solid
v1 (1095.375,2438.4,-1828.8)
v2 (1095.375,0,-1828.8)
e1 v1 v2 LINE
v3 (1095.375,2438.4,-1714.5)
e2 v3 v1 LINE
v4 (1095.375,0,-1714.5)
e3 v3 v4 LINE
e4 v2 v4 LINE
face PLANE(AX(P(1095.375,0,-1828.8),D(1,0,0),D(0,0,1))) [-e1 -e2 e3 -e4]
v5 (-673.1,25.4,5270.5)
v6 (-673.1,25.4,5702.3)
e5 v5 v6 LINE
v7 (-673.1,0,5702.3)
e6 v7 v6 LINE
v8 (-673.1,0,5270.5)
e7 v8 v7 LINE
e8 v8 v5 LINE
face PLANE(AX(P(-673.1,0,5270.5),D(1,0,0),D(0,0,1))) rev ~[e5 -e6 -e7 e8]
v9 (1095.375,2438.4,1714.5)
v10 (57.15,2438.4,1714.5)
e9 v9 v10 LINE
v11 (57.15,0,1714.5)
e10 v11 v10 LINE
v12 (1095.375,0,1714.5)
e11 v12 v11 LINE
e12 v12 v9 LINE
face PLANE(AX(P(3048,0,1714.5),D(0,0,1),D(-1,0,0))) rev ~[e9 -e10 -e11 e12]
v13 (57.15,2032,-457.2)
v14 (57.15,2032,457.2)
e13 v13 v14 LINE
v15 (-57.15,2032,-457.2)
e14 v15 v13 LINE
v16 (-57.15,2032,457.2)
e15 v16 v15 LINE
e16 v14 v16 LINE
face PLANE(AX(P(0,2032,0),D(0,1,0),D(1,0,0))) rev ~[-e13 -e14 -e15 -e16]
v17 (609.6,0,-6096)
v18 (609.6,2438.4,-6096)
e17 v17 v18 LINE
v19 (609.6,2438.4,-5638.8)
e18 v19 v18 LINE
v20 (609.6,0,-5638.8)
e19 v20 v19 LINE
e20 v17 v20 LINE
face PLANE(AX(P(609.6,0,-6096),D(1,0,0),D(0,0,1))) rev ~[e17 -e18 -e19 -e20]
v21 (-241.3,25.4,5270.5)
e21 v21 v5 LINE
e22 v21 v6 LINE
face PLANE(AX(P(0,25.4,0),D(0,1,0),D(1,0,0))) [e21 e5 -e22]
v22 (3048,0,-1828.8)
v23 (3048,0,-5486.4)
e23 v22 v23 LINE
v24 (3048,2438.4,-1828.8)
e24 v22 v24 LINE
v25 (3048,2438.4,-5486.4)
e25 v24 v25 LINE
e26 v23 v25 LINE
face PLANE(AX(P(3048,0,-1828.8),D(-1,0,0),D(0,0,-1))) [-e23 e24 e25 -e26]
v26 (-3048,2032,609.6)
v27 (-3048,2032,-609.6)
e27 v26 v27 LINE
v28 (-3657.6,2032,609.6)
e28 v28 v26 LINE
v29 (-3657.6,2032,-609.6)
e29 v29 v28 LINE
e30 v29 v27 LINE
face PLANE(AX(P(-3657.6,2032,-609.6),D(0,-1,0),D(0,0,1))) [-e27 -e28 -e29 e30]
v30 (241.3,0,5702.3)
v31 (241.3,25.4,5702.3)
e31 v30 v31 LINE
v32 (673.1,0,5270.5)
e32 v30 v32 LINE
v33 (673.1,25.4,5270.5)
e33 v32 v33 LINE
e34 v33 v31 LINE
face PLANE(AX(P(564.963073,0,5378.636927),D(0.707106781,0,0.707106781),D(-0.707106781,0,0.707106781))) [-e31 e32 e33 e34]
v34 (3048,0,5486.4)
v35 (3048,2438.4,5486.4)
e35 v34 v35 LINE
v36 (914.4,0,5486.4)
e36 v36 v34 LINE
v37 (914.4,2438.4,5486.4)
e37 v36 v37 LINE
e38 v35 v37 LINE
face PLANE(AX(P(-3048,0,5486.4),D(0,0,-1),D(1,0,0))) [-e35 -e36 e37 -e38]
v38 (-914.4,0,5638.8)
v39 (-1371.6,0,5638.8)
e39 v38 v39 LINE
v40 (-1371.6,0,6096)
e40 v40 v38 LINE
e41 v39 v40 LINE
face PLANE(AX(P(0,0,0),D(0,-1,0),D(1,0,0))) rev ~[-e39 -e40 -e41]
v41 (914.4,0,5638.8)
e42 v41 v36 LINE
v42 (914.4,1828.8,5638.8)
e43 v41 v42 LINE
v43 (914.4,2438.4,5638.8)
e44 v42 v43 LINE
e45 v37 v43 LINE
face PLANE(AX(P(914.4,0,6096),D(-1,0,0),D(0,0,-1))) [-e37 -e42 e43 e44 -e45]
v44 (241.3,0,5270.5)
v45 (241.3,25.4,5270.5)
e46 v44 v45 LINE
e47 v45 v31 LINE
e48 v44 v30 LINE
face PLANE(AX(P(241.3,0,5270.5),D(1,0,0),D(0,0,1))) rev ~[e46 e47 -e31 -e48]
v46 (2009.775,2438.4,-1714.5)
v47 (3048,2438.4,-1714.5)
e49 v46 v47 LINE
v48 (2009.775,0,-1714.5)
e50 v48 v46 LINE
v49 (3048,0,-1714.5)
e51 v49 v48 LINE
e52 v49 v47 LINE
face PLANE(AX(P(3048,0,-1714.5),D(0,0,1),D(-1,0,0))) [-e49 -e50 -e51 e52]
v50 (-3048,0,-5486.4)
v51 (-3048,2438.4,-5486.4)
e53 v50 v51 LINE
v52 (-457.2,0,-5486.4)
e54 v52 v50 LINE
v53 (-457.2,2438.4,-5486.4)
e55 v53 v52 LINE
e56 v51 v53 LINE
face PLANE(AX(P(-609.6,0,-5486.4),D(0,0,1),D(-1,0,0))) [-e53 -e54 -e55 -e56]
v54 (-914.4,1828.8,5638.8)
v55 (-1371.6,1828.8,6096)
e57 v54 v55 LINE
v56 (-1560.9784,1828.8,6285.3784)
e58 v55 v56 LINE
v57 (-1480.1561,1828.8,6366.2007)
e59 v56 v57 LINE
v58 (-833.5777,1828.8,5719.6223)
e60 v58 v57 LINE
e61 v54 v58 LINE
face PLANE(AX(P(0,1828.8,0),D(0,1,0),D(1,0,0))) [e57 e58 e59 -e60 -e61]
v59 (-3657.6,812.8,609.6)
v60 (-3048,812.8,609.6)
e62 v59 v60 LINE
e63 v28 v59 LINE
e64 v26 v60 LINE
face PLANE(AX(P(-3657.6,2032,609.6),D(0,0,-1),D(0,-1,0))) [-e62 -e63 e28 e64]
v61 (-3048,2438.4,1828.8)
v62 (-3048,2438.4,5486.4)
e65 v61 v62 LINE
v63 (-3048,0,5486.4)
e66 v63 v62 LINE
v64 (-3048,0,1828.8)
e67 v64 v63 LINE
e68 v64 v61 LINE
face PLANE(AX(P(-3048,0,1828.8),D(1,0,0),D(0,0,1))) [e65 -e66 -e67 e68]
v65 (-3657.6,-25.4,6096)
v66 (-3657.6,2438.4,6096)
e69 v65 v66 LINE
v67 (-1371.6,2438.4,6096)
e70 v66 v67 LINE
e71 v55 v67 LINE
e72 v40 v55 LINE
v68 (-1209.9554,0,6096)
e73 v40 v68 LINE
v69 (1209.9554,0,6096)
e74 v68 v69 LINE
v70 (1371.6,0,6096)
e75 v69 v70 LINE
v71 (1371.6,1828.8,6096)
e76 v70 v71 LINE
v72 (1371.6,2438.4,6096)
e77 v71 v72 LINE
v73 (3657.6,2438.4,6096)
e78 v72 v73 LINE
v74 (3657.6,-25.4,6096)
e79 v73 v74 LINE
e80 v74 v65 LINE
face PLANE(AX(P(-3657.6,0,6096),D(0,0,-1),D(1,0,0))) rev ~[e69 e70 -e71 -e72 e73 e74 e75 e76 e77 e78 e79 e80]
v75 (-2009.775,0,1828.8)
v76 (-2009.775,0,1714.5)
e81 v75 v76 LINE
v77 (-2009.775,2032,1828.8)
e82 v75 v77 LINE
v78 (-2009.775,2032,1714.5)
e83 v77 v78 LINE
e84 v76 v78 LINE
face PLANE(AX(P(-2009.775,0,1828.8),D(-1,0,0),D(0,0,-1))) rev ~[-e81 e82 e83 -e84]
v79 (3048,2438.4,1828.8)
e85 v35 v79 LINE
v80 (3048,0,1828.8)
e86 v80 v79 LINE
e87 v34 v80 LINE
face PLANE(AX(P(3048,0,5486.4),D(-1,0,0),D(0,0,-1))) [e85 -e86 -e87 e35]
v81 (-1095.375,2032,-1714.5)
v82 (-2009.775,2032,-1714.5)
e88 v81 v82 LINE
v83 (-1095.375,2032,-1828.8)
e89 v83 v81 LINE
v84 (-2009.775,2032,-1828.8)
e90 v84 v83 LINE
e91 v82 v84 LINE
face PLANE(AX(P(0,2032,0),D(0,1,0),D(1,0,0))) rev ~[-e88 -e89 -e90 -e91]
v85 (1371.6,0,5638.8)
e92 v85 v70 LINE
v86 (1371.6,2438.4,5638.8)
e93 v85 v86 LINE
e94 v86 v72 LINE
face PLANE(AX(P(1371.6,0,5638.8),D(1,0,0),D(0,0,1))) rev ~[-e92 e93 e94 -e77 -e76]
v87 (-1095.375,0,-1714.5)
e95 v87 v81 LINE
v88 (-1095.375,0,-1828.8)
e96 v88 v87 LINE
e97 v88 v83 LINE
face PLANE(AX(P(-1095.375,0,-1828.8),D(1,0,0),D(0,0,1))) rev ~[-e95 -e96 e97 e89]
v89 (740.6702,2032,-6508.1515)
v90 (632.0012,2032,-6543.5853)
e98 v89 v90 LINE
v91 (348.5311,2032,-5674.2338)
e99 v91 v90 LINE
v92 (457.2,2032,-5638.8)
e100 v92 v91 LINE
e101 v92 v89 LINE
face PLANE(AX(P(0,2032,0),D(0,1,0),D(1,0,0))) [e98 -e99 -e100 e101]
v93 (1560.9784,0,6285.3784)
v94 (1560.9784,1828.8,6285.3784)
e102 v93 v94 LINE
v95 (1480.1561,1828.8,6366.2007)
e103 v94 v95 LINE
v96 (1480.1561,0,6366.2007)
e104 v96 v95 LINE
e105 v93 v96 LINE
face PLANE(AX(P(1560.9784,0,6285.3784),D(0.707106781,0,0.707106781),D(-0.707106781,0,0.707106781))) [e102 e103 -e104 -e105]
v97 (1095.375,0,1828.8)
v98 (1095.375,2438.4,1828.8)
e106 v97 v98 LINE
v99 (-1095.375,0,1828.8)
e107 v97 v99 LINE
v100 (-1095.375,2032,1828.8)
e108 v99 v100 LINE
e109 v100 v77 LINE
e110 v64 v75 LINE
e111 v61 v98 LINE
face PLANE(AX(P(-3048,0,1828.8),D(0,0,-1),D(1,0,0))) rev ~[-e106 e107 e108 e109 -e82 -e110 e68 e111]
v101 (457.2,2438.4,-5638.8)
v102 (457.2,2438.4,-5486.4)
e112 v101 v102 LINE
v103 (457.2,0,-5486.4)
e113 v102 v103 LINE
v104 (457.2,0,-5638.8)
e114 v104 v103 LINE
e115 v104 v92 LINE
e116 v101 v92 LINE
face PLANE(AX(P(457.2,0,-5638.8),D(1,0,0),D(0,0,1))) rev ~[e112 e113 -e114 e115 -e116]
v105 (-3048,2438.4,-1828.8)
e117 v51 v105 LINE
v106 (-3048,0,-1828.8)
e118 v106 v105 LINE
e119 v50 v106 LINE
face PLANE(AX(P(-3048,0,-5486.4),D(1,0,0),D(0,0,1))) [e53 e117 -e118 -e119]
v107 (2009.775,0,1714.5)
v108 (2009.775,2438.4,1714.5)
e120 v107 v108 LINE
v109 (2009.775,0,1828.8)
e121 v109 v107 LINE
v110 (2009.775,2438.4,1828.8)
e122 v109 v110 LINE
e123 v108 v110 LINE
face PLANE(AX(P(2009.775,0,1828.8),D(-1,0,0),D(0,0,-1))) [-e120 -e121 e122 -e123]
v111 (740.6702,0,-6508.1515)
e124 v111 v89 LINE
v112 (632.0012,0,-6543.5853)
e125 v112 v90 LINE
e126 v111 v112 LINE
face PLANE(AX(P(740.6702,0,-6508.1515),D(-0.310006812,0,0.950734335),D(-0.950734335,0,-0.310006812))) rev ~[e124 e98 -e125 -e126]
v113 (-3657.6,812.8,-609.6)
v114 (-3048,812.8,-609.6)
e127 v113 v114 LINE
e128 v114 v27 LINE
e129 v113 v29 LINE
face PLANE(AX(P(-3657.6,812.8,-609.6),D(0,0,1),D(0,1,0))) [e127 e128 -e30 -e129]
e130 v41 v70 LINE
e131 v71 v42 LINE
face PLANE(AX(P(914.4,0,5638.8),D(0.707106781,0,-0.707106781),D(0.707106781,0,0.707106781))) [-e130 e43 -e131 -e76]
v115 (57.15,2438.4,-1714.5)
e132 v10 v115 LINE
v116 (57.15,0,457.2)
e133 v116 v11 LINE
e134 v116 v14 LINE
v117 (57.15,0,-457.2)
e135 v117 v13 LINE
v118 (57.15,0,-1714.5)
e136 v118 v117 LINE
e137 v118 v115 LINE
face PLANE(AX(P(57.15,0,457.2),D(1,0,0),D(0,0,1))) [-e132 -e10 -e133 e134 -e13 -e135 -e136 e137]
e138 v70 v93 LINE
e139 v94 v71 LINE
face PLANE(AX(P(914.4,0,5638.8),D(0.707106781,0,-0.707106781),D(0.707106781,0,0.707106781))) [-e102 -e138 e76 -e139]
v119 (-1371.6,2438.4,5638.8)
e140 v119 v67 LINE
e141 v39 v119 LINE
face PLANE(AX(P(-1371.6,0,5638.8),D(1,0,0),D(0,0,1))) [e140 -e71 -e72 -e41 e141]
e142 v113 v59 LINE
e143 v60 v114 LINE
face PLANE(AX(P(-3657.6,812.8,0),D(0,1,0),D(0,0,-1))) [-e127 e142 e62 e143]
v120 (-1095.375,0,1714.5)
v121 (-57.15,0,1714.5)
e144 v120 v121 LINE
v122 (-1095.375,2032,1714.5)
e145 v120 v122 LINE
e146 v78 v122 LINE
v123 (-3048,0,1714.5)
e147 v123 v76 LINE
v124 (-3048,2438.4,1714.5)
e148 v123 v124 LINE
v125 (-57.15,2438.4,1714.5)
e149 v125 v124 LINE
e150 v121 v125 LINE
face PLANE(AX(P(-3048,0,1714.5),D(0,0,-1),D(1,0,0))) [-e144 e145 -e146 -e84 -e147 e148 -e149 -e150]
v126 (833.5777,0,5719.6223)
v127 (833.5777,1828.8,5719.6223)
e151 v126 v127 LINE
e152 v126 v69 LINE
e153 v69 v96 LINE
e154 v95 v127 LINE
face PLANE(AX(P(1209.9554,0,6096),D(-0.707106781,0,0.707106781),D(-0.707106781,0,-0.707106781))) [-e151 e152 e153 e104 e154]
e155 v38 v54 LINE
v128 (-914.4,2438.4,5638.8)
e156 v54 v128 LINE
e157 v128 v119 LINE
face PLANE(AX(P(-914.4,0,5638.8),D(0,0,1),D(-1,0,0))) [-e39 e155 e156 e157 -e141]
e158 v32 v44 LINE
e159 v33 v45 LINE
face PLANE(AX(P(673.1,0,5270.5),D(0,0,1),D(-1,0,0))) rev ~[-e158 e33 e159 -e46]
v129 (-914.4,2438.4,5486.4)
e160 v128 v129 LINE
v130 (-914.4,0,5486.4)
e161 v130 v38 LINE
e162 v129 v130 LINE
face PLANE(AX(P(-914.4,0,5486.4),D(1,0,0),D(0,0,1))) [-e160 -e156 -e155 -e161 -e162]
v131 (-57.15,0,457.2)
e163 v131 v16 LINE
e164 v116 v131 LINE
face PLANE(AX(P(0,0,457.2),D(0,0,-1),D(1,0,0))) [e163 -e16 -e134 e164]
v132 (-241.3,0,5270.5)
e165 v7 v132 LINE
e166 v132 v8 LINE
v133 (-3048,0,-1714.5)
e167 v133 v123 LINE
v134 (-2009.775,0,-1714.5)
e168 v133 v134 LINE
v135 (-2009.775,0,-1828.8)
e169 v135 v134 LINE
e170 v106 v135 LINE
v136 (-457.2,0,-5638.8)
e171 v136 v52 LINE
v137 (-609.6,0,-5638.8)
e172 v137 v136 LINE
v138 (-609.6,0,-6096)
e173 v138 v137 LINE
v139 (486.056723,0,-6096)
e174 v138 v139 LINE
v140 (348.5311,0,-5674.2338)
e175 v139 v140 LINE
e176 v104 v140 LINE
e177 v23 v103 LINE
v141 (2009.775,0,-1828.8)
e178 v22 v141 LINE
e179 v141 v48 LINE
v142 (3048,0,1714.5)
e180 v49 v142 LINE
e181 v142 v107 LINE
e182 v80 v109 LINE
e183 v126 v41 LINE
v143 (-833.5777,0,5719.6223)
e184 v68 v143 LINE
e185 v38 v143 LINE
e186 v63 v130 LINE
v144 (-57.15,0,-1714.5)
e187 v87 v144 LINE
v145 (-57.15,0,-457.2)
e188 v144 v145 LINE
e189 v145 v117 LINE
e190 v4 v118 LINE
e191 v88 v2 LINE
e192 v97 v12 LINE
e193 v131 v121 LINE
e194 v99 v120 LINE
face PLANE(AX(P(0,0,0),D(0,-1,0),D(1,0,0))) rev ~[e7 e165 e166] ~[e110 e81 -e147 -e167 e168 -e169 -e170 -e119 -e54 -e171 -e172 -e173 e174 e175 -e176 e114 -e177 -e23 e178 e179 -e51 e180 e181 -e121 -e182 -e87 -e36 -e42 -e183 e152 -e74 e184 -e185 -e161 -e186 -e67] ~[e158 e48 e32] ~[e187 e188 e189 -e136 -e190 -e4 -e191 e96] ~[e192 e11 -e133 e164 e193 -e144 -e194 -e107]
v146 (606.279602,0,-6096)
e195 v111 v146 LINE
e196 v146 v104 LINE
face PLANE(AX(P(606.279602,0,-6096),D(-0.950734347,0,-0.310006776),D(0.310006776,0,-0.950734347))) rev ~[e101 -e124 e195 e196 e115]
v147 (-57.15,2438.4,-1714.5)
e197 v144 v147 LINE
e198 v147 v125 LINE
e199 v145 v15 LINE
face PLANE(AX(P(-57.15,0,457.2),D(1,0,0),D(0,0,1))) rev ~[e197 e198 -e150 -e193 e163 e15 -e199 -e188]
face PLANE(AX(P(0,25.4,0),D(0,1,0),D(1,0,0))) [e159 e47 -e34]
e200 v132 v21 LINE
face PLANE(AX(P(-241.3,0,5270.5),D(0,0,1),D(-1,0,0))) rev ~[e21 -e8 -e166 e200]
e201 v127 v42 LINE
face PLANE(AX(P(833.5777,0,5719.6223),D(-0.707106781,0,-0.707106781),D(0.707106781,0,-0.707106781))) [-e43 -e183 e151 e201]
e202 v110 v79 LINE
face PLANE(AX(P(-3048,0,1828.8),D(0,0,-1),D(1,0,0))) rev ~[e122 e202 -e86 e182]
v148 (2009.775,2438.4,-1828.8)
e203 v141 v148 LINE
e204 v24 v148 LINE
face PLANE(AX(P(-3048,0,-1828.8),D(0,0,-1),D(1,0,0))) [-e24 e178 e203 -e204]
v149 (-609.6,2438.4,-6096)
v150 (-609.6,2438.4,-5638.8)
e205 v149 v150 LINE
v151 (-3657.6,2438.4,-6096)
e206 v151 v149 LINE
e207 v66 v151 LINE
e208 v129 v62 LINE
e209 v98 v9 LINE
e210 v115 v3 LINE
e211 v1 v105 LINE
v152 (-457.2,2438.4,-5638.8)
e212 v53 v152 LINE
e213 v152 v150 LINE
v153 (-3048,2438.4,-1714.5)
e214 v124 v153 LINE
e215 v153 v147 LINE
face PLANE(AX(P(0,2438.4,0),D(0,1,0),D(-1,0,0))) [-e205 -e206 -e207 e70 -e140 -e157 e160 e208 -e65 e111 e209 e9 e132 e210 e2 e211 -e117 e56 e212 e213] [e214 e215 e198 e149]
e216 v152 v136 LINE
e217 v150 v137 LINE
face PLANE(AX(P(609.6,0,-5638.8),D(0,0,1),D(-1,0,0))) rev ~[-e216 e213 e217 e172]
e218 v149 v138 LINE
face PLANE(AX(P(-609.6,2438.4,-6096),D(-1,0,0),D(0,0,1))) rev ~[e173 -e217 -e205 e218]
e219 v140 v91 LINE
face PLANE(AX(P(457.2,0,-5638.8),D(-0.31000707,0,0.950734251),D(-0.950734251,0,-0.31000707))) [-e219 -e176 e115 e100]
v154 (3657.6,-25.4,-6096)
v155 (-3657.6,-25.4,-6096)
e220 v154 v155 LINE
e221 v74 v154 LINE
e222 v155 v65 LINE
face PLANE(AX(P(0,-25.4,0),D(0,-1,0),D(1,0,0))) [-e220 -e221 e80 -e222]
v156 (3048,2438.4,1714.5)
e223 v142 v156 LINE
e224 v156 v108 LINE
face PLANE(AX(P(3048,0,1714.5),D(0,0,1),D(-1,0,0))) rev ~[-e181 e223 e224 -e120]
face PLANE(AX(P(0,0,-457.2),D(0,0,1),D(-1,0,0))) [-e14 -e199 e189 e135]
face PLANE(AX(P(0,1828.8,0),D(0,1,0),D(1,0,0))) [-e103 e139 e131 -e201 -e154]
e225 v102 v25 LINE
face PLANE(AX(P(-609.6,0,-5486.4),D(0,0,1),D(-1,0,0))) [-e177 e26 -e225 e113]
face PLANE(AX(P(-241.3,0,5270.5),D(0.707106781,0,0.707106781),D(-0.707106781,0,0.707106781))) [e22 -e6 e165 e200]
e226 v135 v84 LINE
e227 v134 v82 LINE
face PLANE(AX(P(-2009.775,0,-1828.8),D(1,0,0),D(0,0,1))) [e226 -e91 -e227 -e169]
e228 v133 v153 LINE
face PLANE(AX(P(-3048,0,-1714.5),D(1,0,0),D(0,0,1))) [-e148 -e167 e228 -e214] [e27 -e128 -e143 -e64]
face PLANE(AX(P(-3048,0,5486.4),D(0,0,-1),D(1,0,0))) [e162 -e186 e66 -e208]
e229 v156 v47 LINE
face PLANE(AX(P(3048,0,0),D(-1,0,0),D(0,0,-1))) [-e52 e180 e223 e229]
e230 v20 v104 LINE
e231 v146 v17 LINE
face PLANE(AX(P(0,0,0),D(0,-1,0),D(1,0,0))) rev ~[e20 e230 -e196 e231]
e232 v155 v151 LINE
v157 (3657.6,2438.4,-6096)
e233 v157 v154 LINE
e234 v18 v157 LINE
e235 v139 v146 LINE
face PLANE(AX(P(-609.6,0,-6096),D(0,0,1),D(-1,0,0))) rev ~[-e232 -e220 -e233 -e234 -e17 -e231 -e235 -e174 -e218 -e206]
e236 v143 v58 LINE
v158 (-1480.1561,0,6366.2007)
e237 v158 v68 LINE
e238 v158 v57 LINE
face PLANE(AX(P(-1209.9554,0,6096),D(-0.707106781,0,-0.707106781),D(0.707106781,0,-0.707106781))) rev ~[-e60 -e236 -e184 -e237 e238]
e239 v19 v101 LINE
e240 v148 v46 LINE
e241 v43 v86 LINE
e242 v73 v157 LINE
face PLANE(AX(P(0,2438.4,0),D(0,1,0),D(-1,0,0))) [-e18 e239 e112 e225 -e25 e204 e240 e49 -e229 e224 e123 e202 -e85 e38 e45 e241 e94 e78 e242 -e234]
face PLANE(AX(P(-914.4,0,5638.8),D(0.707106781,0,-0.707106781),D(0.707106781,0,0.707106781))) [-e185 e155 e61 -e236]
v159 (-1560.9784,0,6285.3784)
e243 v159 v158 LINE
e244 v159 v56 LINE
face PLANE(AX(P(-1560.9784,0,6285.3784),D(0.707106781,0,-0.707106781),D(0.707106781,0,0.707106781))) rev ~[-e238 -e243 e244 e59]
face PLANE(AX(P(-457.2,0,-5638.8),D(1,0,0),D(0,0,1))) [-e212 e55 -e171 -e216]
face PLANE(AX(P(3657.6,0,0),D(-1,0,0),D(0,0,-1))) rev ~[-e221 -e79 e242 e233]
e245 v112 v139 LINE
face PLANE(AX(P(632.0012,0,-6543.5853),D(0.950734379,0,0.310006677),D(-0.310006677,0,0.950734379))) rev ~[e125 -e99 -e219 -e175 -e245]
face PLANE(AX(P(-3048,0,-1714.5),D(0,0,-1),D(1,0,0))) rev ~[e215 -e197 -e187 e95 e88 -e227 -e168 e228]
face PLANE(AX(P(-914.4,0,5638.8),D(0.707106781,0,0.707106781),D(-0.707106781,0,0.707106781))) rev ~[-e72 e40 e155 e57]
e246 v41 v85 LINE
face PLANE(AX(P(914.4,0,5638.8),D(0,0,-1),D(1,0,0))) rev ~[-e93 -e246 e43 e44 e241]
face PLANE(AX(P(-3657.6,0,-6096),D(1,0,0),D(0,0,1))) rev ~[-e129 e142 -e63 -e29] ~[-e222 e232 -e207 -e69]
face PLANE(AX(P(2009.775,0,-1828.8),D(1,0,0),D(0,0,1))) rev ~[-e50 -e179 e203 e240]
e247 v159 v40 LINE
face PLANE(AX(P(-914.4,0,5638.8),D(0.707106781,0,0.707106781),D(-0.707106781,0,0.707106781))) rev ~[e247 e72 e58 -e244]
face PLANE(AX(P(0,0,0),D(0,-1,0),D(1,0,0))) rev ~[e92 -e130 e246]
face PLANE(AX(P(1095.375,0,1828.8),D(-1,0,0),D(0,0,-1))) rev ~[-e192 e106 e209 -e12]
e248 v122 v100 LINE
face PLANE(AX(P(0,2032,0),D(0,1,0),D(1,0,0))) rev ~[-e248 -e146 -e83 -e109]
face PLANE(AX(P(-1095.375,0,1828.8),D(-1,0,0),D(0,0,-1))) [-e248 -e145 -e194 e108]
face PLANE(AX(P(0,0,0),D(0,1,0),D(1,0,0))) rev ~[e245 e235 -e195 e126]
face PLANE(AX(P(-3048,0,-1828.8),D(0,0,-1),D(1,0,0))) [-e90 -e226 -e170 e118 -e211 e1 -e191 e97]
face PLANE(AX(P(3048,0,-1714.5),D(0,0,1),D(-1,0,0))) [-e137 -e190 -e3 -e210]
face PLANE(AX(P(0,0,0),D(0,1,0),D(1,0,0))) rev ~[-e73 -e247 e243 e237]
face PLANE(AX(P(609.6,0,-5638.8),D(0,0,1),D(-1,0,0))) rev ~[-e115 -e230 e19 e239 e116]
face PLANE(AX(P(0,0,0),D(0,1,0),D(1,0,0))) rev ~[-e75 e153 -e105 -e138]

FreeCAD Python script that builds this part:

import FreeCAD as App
import Part
import Sketcher

V = App.Vector
Q = App.Units.Quantity


def add_polygon(sketch, points):
    """Adds a closed chain of lines whose ends are joined by coincident constraints."""
    first, n = sketch.GeometryCount, len(points)
    for a, b in zip(points, points[1:] + points[:1]):
        sketch.addGeometry(Part.LineSegment(App.Vector(*a, 0), App.Vector(*b, 0)), False)
    for i in range(n):
        sketch.addConstraint(Sketcher.Constraint("Coincident", first + i, 2, first + (i + 1) % n, 1))

doc = App.newDocument("Part")
params = doc.addObject("Spreadsheet::Sheet", "Params")
for row, (alias, value) in enumerate([
    ("sketch1_height", "480 in"),
    ("sketch1_height2", "24 in"),
    ("sketch1_width", "4.5 in"),
    ("pad1_length", "96 in"),
    ("sketch2_width", "48 in"),
    ("pocket1_length", "24 in"),
    ("sketch3_width", "36 in"),
    ("sketch3_width2", "48 in"),
    ("sketch3_width3", "72 in"),
    ("sketch3_height", "24 in"),
    ("sketch3_width4", "4.5 in"),
    ("pad2_length", "16 in"),
    ("sketch4_width", "288 in"),
    ("sketch4_height", "480 in"),
    ("pad3_length", "1 in"),
    ("sketch5_width", "17 in"),
    ("pad4_length", "1 in"),
    ("sketch6_width", "72 in"),
    ("sketch6_width2", "36 in"),
    ("sketch6_height", "24 in"),
    ("sketch6_height2", "4.5 in"),
    ("pocket2_length", "16 in"),
    ("sketch7_width", "18 in"),
    ("pocket3_length", "96 in"),
    ("sketch8_length", "36 in"),
    ("sketch8_length2", "4.5 in"),
    ("pad5_length", "72 in"),
    ("sketch9_width", "6 in"),
    ("pad6_length", "96 in"),
    ("sketch10_width", "48 in"),
    ("sketch10_height", "18 in"),
    ("pocket4_length", "80 in"),
    ("sketch11_length", "36 in"),
    ("sketch11_length2", "4.5 in"),
    ("pad7_length", "80 in"),
    ("sketch12_width", "36 in"),
    ("sketch12_height", "6 in"),
    ("pocket5_length", "16 in"),
], start=1):
    params.set(f"A{row}", alias)
    params.set(f"B{row}", "=" + value)
    params.setAlias(f"B{row}", alias)

body = doc.addObject("PartDesign::Body", "Body")
body.AllowCompound = True

sketch1 = doc.addObject("Sketcher::SketchObject", "Sketch")
body.addObject(sketch1)
sketch1.AttachmentSupport = (doc.XZ_Plane, [""])
sketch1.MapMode = "FlatFace"
add_polygon(sketch1, [(-610, -6096), (-3658, -6096), (-3658, 6096), (-914, 6096), (-914, 5486), (-3048, 5486), (-3048, 1829), (-2010, 1829), (-2010, 1714), (-3048, 1714), (-3048, -1714), (-2010, -1714), (-2010, -1829), (-3048, -1829), (-3048, -5486), (-610, -5486)])
add_polygon(sketch1, [(-57, -457), (57, -457), (57, -1714), (1095, -1714), (1095, -1829), (-1095, -1829), (-1095, -1714), (-57, -1714)])
add_polygon(sketch1, [(3048, -1714), (3048, 1714), (2010, 1714), (2010, 1829), (3048, 1829), (3048, 5486), (914, 5486), (914, 6096), (3658, 6096), (3658, -6096), (610, -6096), (610, -5486), (3048, -5486), (3048, -1829), (2010, -1829), (2010, -1714)])
add_polygon(sketch1, [(57, 457), (-57, 457), (-57, 1714), (-1095, 1714), (-1095, 1829), (1095, 1829), (1095, 1714), (57, 1714)])
sketch1.addConstraint([
    Sketcher.Constraint("Horizontal", 0),
    Sketcher.Constraint("Vertical", 1),
    Sketcher.Constraint("Horizontal", 2),
    Sketcher.Constraint("Vertical", 3),
    Sketcher.Constraint("Horizontal", 4),
    Sketcher.Constraint("Vertical", 5),
    Sketcher.Constraint("Horizontal", 6),
    Sketcher.Constraint("Vertical", 7),
    Sketcher.Constraint("Horizontal", 8),
    Sketcher.Constraint("Vertical", 9),
    Sketcher.Constraint("Horizontal", 10),
    Sketcher.Constraint("Vertical", 11),
    Sketcher.Constraint("Horizontal", 12),
    Sketcher.Constraint("Vertical", 13),
    Sketcher.Constraint("Horizontal", 14),
    Sketcher.Constraint("Vertical", 15),
    Sketcher.Constraint("Horizontal", 16),
    Sketcher.Constraint("Vertical", 17),
    Sketcher.Constraint("Horizontal", 18),
    Sketcher.Constraint("Vertical", 19),
    Sketcher.Constraint("Horizontal", 20),
    Sketcher.Constraint("Vertical", 21),
    Sketcher.Constraint("Horizontal", 22),
    Sketcher.Constraint("Vertical", 23),
    Sketcher.Constraint("Vertical", 24),
    Sketcher.Constraint("Horizontal", 25),
    Sketcher.Constraint("Vertical", 26),
    Sketcher.Constraint("Horizontal", 27),
    Sketcher.Constraint("Vertical", 28),
    Sketcher.Constraint("Horizontal", 29),
    Sketcher.Constraint("Vertical", 30),
    Sketcher.Constraint("Horizontal", 31),
    Sketcher.Constraint("Vertical", 32),
    Sketcher.Constraint("Horizontal", 33),
    Sketcher.Constraint("Vertical", 34),
    Sketcher.Constraint("Horizontal", 35),
    Sketcher.Constraint("Vertical", 36),
    Sketcher.Constraint("Horizontal", 37),
    Sketcher.Constraint("Vertical", 38),
    Sketcher.Constraint("Horizontal", 39),
    Sketcher.Constraint("Horizontal", 40),
    Sketcher.Constraint("Vertical", 41),
    Sketcher.Constraint("Horizontal", 42),
    Sketcher.Constraint("Vertical", 43),
    Sketcher.Constraint("Horizontal", 44),
    Sketcher.Constraint("Vertical", 45),
    Sketcher.Constraint("Horizontal", 46),
    Sketcher.Constraint("Vertical", 47),
    Sketcher.Constraint("Symmetric", 9, 2, 24, 2, -1, 1),
    Sketcher.Constraint("Symmetric", 11, 2, 26, 2, -1, 1),
    Sketcher.Constraint("Symmetric", 13, 2, 28, 2, -1, 1),
    Sketcher.Constraint("Symmetric", 0, 2, 31, 2, -1, 1),
    Sketcher.Constraint("Symmetric", 4, 2, 35, 2, -1, 1),
    Sketcher.Constraint("Symmetric", 6, 2, 37, 2, -1, 1),
    Sketcher.Constraint("Symmetric", 16, 2, 40, 2, -1, 1),
    Sketcher.Constraint("Symmetric", 18, 2, 42, 2, -1, 1),
    Sketcher.Constraint("Symmetric", 20, 2, 44, 2, -1, 1),
    Sketcher.Constraint("Symmetric", 22, 2, 46, 2, -1, 1),
    Sketcher.Constraint("Symmetric", 18, 2, 21, 2, -2),
    Sketcher.Constraint("Symmetric", 7, 2, 25, 2, -2),
    Sketcher.Constraint("Symmetric", 5, 2, 27, 2, -2),
    Sketcher.Constraint("Symmetric", 3, 2, 29, 2, -2),
    Sketcher.Constraint("Symmetric", 15, 2, 33, 2, -2),
    Sketcher.Constraint("Horizontal", 10, 2, 17, 2),
    Sketcher.Constraint("Horizontal", 12, 2, 19, 2),
    Sketcher.Constraint("Horizontal", 2, 2, 30, 2),
    Sketcher.Constraint("Horizontal", 22, 2, 38, 2),
    Sketcher.Constraint("Vertical", 5, 2, 8, 2),
    Sketcher.Constraint("Vertical", 23, 2, 40, 2),
    Sketcher.Constraint("Equal", 12, 18),
    Sketcher.Constraint("Equal", 40, 7),
    Sketcher.Constraint("DistanceY", 1, 1, 1, 2, Q("480 in")),
    Sketcher.Constraint("DistanceY", 3, 2, 3, 1, Q("24 in")),
    Sketcher.Constraint("DistanceX", 16, 1, 16, 2, Q("4.5 in")),
    Sketcher.Constraint("DistanceX", 2, 2, -1, 1, Q("36 in")),
    Sketcher.Constraint("DistanceY", -1, 1, 5, 2, Q("72 in")),
    Sketcher.Constraint("DistanceX", 14, 2, -1, 1, Q("24 in")),
    Sketcher.Constraint("DistanceX", 1, 2, 4, 2, Q("24 in")),
    Sketcher.Constraint("DistanceX", 11, 2, 20, 2, Q("36 in")),
    Sketcher.Constraint("DistanceX", 15, 2, 32, 2, Q("168 in")),
    Sketcher.Constraint("DistanceY", 23, 2, 40, 2, Q("36 in")),
])
sketch1.setExpression("Constraints[119]", "Params.sketch1_height")
sketch1.setExpression("Constraints[120]", "Params.sketch1_height2")
sketch1.setExpression("Constraints[121]", "Params.sketch1_width")
pad1 = doc.addObject("PartDesign::Pad", "Pad")
body.addObject(pad1)
pad1.Profile = sketch1
pad1.setExpression("Length", "Params.pad1_length")
pad1.Reversed = True

sketch2 = doc.addObject("Sketcher::SketchObject", "Sketch001")
body.addObject(sketch2)
sketch2.AttachmentSupport = (doc.YZ_Plane, [""])
sketch2.MapMode = "FlatFace"
sketch2.AttachmentOffset = App.Placement(V(0, 0, -144 * 25.4), App.Rotation())
add_polygon(sketch2, [(2032, -610), (813, -610), (813, 610), (2032, 610)])
sketch2.addConstraint([
    Sketcher.Constraint("Horizontal", 0),
    Sketcher.Constraint("Vertical", 1),
    Sketcher.Constraint("Horizontal", 2),
    Sketcher.Constraint("Vertical", 3),
    Sketcher.Constraint("Equal", 2, 1),
    Sketcher.Constraint("DistanceX", 0, 2, 0, 1, Q("48 in")),
    Sketcher.Constraint("DistanceX", -1, 1, 0, 2, Q("32 in")),
    Sketcher.Constraint("DistanceY", 0, 2, -1, 1, Q("24 in")),
])
sketch2.setExpression("Constraints[9]", "Params.sketch2_width")
pocket1 = doc.addObject("PartDesign::Pocket", "Pocket")
body.addObject(pocket1)
pocket1.Profile = sketch2
pocket1.setExpression("Length", "Params.pocket1_length")
pocket1.Reversed = True

sketch3 = doc.addObject("Sketcher::SketchObject", "Sketch002")
body.addObject(sketch3)
sketch3.AttachmentSupport = (doc.XZ_Plane, [""])
sketch3.MapMode = "FlatFace"
sketch3.AttachmentOffset = App.Placement(V(0, 0, -96 * 25.4), App.Rotation())
add_polygon(sketch3, [(1095, -1829), (1095, -1714), (2010, -1714), (2010, -1829)])
add_polygon(sketch3, [(57, 457), (57, -457), (-57, -457), (-57, 457)])
add_polygon(sketch3, [(-1095, -1714), (-1095, -1829), (-2010, -1829), (-2010, -1714)])
add_polygon(sketch3, [(2010, 1714), (1095, 1714), (1095, 1829), (2010, 1829)])
add_polygon(sketch3, [(-1095, 1829), (-1095, 1714), (-2010, 1714), (-2010, 1829)])
add_polygon(sketch3, [(-610, -5486), (610, -5486), (610, -6096), (-610, -6096)])
add_polygon(sketch3, [(914, 6096), (914, 5486), (-914, 5486), (-914, 6096)])
sketch3.addConstraint([
    Sketcher.Constraint("Vertical", 0),
    Sketcher.Constraint("Horizontal", 1),
    Sketcher.Constraint("Vertical", 2),
    Sketcher.Constraint("Horizontal", 3),
    Sketcher.Constraint("Vertical", 4),
    Sketcher.Constraint("Horizontal", 5),
    Sketcher.Constraint("Vertical", 6),
    Sketcher.Constraint("Horizontal", 7),
    Sketcher.Constraint("Vertical", 8),
    Sketcher.Constraint("Horizontal", 9),
    Sketcher.Constraint("Vertical", 10),
    Sketcher.Constraint("Horizontal", 11),
    Sketcher.Constraint("Horizontal", 12),
    Sketcher.Constraint("Vertical", 13),
    Sketcher.Constraint("Horizontal", 14),
    Sketcher.Constraint("Vertical", 15),
    Sketcher.Constraint("Vertical", 16),
    Sketcher.Constraint("Horizontal", 17),
    Sketcher.Constraint("Vertical", 18),
    Sketcher.Constraint("Horizontal", 19),
    Sketcher.Constraint("Horizontal", 20),
    Sketcher.Constraint("Vertical", 21),
    Sketcher.Constraint("Horizontal", 22),
    Sketcher.Constraint("Vertical", 23),
    Sketcher.Constraint("Vertical", 24),
    Sketcher.Constraint("Horizontal", 25),
    Sketcher.Constraint("Vertical", 26),
    Sketcher.Constraint("Horizontal", 27),
    Sketcher.Constraint("Symmetric", 4, 2, 6, 2, -1, 1),
    Sketcher.Constraint("Symmetric", 11, 2, 12, 2, -1, 1),
    Sketcher.Constraint("Symmetric", 9, 2, 14, 2, -1, 1),
    Sketcher.Constraint("Symmetric", 0, 2, 16, 2, -1, 1),
    Sketcher.Constraint("Symmetric", 2, 2, 18, 2, -1, 1),
    Sketcher.Constraint("Symmetric", 3, 2, 8, 2, -2),
    Sketcher.Constraint("Symmetric", 1, 2, 10, 2, -2),
    Sketcher.Constraint("Equal", 7, 0),
    Sketcher.Constraint("Equal", 19, 4),
    Sketcher.Constraint("Equal", 23, 24),
    Sketcher.Constraint("DistanceX", 1, 1, 1, 2, Q("36 in")),
    Sketcher.Constraint("DistanceX", 20, 1, 20, 2, Q("48 in")),
    Sketcher.Constraint("DistanceX", 25, 2, 25, 1, Q("72 in")),
    Sketcher.Constraint("DistanceY", 21, 2, 21, 1, Q("24 in")),
    Sketcher.Constraint("DistanceX", 5, 2, 5, 1, Q("4.5 in")),
    Sketcher.Constraint("DistanceY", 2, 2, -1, 1, Q("72 in")),
    Sketcher.Constraint("DistanceX", -1, 1, 20, 2, Q("24 in")),
    Sketcher.Constraint("DistanceY", 20, 2, -1, 1, Q("216 in")),
    Sketcher.Constraint("DistanceX", -1, 1, 24, 2, Q("36 in")),
    Sketcher.Constraint("DistanceY", -1, 1, 24, 2, Q("216 in")),
    Sketcher.Constraint("DistanceX", 8, 2, 3, 2, Q("86.25 in")),
])
sketch3.setExpression("Constraints[66]", "Params.sketch3_width")
sketch3.setExpression("Constraints[67]", "Params.sketch3_width2")
sketch3.setExpression("Constraints[68]", "Params.sketch3_width3")
sketch3.setExpression("Constraints[69]", "Params.sketch3_height")
sketch3.setExpression("Constraints[70]", "Params.sketch3_width4")
pad2 = doc.addObject("PartDesign::Pad", "Pad001")
body.addObject(pad2)
pad2.Profile = sketch3
pad2.setExpression("Length", "Params.pad2_length")

sketch4 = doc.addObject("Sketcher::SketchObject", "Sketch003")
body.addObject(sketch4)
sketch4.AttachmentSupport = (doc.XZ_Plane, [""])
sketch4.MapMode = "FlatFace"
add_polygon(sketch4, [(3658, -6096), (3658, 6096), (-3658, 6096), (-3658, -6096)])
sketch4.addConstraint([
    Sketcher.Constraint("Vertical", 0),
    Sketcher.Constraint("Horizontal", 1),
    Sketcher.Constraint("Vertical", 2),
    Sketcher.Constraint("Horizontal", 3),
    Sketcher.Constraint("Symmetric", 0, 2, 2, 2, -1, 1),
    Sketcher.Constraint("DistanceX", 1, 2, 1, 1, Q("288 in")),
    Sketcher.Constraint("DistanceY", 0, 1, 0, 2, Q("480 in")),
])
sketch4.setExpression("Constraints[9]", "Params.sketch4_width")
sketch4.setExpression("Constraints[10]", "Params.sketch4_height")
pad3 = doc.addObject("PartDesign::Pad", "Pad002")
body.addObject(pad3)
pad3.Profile = sketch4
pad3.setExpression("Length", "Params.pad3_length")

sketch5 = doc.addObject("Sketcher::SketchObject", "Sketch004")
body.addObject(sketch5)
sketch5.AttachmentSupport = (doc.XZ_Plane, [""])
sketch5.MapMode = "FlatFace"
add_polygon(sketch5, [(673, 5270), (241, 5270), (241, 5702)])
add_polygon(sketch5, [(-241, 5270), (-673, 5270), (-673, 5702)])
sketch5.addConstraint([
    Sketcher.Constraint("Horizontal", 0),
    Sketcher.Constraint("Vertical", 1),
    Sketcher.Constraint("Horizontal", 3),
    Sketcher.Constraint("Vertical", 4),
    Sketcher.Constraint("Symmetric", 2, 2, 3, 2, -2),
    Sketcher.Constraint("Parallel", 2, 5),
    Sketcher.Constraint("Horizontal", 1, 2, 4, 2),
    Sketcher.Constraint("Equal", 3, 1),
    Sketcher.Constraint("DistanceX", 0, 2, 0, 1, Q("17 in")),
    Sketcher.Constraint("DistanceX", 3, 2, 0, 2, Q("36 in")),
    Sketcher.Constraint("DistanceY", -1, 1, 0, 2, Q("207.5 in")),
])
sketch5.setExpression("Constraints[14]", "Params.sketch5_width")
pad4 = doc.addObject("PartDesign::Pad", "Pad003")
body.addObject(pad4)
pad4.Profile = sketch5
pad4.setExpression("Length", "Params.pad4_length")
pad4.Reversed = True

sketch6 = doc.addObject("Sketcher::SketchObject", "Sketch005")
body.addObject(sketch6)
sketch6.AttachmentSupport = (doc.XZ_Plane, [""])
sketch6.MapMode = "FlatFace"
sketch6.AttachmentOffset = App.Placement(V(0, 0, -96 * 25.4), App.Rotation())
add_polygon(sketch6, [(-914, 5486), (-914, 6096), (914, 6096), (914, 5486)])
add_polygon(sketch6, [(1095, 1829), (2010, 1829), (2010, 1714), (1095, 1714)])
add_polygon(sketch6, [(1095, -1714), (2010, -1714), (2010, -1829), (1095, -1829)])
sketch6.addConstraint([
    Sketcher.Constraint("Vertical", 0),
    Sketcher.Constraint("Horizontal", 1),
    Sketcher.Constraint("Vertical", 2),
    Sketcher.Constraint("Horizontal", 3),
    Sketcher.Constraint("Horizontal", 4),
    Sketcher.Constraint("Vertical", 5),
    Sketcher.Constraint("Horizontal", 6),
    Sketcher.Constraint("Vertical", 7),
    Sketcher.Constraint("Horizontal", 8),
    Sketcher.Constraint("Vertical", 9),
    Sketcher.Constraint("Horizontal", 10),
    Sketcher.Constraint("Vertical", 11),
    Sketcher.Constraint("Symmetric", 5, 2, 8, 2, -1),
    Sketcher.Constraint("Symmetric", 7, 2, 10, 2, -1),
    Sketcher.Constraint("DistanceX", 1, 1, 1, 2, Q("72 in")),
    Sketcher.Constraint("DistanceX", 4, 1, 4, 2, Q("36 in")),
    Sketcher.Constraint("DistanceY", 0, 1, 0, 2, Q("24 in")),
    Sketcher.Constraint("DistanceY", 5, 2, 5, 1, Q("4.5 in")),
    Sketcher.Constraint("DistanceX", 0, 2, -1, 1, Q("36 in")),
    Sketcher.Constraint("DistanceY", -1, 1, 0, 2, Q("240 in")),
    Sketcher.Constraint("DistanceY", -1, 1, 4, 2, Q("72 in")),
    Sketcher.Constraint("DistanceX", -1, 1, 4, 2, Q("79.125 in")),
])
sketch6.setExpression("Constraints[26]", "Params.sketch6_width")
sketch6.setExpression("Constraints[27]", "Params.sketch6_width2")
sketch6.setExpression("Constraints[28]", "Params.sketch6_height")
sketch6.setExpression("Constraints[29]", "Params.sketch6_height2")
pocket2 = doc.addObject("PartDesign::Pocket", "Pocket001")
body.addObject(pocket2)
pocket2.Profile = sketch6
pocket2.setExpression("Length", "Params.pocket2_length")
pocket2.Reversed = True

sketch7 = doc.addObject("Sketcher::SketchObject", "Sketch006")
body.addObject(sketch7)
sketch7.AttachmentSupport = (doc.XZ_Plane, [""])
sketch7.MapMode = "FlatFace"
add_polygon(sketch7, [(-914, 6096), (-914, 5639), (-1372, 5639), (-1372, 6096)])
add_polygon(sketch7, [(914, 6096), (1372, 6096), (1372, 5639), (914, 5639)])
sketch7.addConstraint([
    Sketcher.Constraint("Vertical", 0),
    Sketcher.Constraint("Horizontal", 1),
    Sketcher.Constraint("Vertical", 2),
    Sketcher.Constraint("Horizontal", 3),
    Sketcher.Constraint("Horizontal", 4),
    Sketcher.Constraint("Vertical", 5),
    Sketcher.Constraint("Horizontal", 6),
    Sketcher.Constraint("Vertical", 7),
    Sketcher.Constraint("Symmetric", 2, 2, 4, 2, -2),
    Sketcher.Constraint("Symmetric", 0, 2, 6, 2, -2),
    Sketcher.Constraint("Equal", 6, 0),
    Sketcher.Constraint("DistanceX", 1, 2, 1, 1, Q("18 in")),
    Sketcher.Constraint("DistanceX", 0, 2, -1, 1, Q("36 in")),
    Sketcher.Constraint("DistanceY", -1, 1, 0, 2, Q("222 in")),
])
sketch7.setExpression("Constraints[19]", "Params.sketch7_width")
pocket3 = doc.addObject("PartDesign::Pocket", "Pocket002")
body.addObject(pocket3)
pocket3.Profile = sketch7
pocket3.setExpression("Length", "Params.pocket3_length")

sketch8 = doc.addObject("Sketcher::SketchObject", "Sketch007")
body.addObject(sketch8)
sketch8.AttachmentSupport = (doc.XZ_Plane, [""])
sketch8.MapMode = "FlatFace"
add_polygon(sketch8, [(-834, 5720), (-914, 5639), (-1561, 6285), (-1480, 6366)])
add_polygon(sketch8, [(1480, 6366), (1561, 6285), (914, 5639), (834, 5720)])
sketch8.addConstraint([
    Sketcher.Constraint("Symmetric", 1, 2, 4, 2, -2),
    Sketcher.Constraint("Symmetric", 0, 2, 5, 2, -2),
    Sketcher.Constraint("Symmetric", 3, 2, 6, 2, -2),
    Sketcher.Constraint("Symmetric", 2, 2, 7, 2, -2),
    Sketcher.Constraint("Perpendicular", 0, 1),
    Sketcher.Constraint("Perpendicular", 1, 2),
    Sketcher.Constraint("Perpendicular", 2, 3),
    Sketcher.Constraint("Parallel", 3, 4),
    Sketcher.Constraint("Distance", 1, Q("36 in")),
    Sketcher.Constraint("DistanceX", 0, 2, -1, 1, Q("36 in")),
    Sketcher.Constraint("Distance", 0, Q("4.5 in")),
    Sketcher.Constraint("DistanceY", -1, 1, 0, 2, Q("222 in")),
])
sketch8.setExpression("Constraints[16]", "Params.sketch8_length")
sketch8.setExpression("Constraints[18]", "Params.sketch8_length2")
pad5 = doc.addObject("PartDesign::Pad", "Pad004")
body.addObject(pad5)
pad5.Profile = sketch8
pad5.setExpression("Length", "Params.pad5_length")
pad5.Reversed = True

sketch9 = doc.addObject("Sketcher::SketchObject", "Sketch008")
body.addObject(sketch9)
sketch9.AttachmentSupport = (doc.XZ_Plane, [""])
sketch9.MapMode = "FlatFace"
add_polygon(sketch9, [(-457, -5639), (-610, -5639), (-610, -5486), (-457, -5486)])
add_polygon(sketch9, [(610, -5639), (457, -5639), (457, -5486), (610, -5486)])
sketch9.addConstraint([
    Sketcher.Constraint("Horizontal", 0),
    Sketcher.Constraint("Vertical", 1),
    Sketcher.Constraint("Horizontal", 2),
    Sketcher.Constraint("Vertical", 3),
    Sketcher.Constraint("Horizontal", 4),
    Sketcher.Constraint("Vertical", 5),
    Sketcher.Constraint("Horizontal", 6),
    Sketcher.Constraint("Vertical", 7),
    Sketcher.Constraint("Symmetric", 3, 2, 4, 2, -2),
    Sketcher.Constraint("Symmetric", 1, 2, 6, 2, -2),
    Sketcher.Constraint("Equal", 6, 1),
    Sketcher.Constraint("DistanceX", 0, 2, 0, 1, Q("6 in")),
    Sketcher.Constraint("DistanceX", 2, 2, -1, 1, Q("18 in")),
    Sketcher.Constraint("DistanceY", 0, 2, -1, 1, Q("222 in")),
])
sketch9.setExpression("Constraints[19]", "Params.sketch9_width")
pad6 = doc.addObject("PartDesign::Pad", "Pad005")
body.addObject(pad6)
pad6.Profile = sketch9
pad6.setExpression("Length", "Params.pad6_length")
pad6.Reversed = True

sketch10 = doc.addObject("Sketcher::SketchObject", "Sketch009")
body.addObject(sketch10)
sketch10.AttachmentSupport = (doc.XZ_Plane, [""])
sketch10.MapMode = "FlatFace"
sketch10.AttachmentOffset = App.Placement(V(0, 0, -96 * 25.4), App.Rotation())
add_polygon(sketch10, [(-610, -5639), (610, -5639), (610, -6096), (-610, -6096)])
sketch10.addConstraint([
    Sketcher.Constraint("Horizontal", 0),
    Sketcher.Constraint("Vertical", 1),
    Sketcher.Constraint("Horizontal", 2),
    Sketcher.Constraint("Vertical", 3),
    Sketcher.Constraint("DistanceX", 0, 1, 0, 2, Q("48 in")),
    Sketcher.Constraint("DistanceY", 1, 2, 1, 1, Q("18 in")),
    Sketcher.Constraint("DistanceX", -1, 1, 0, 2, Q("24 in")),
    Sketcher.Constraint("DistanceY", 0, 2, -1, 1, Q("222 in")),
])
sketch10.setExpression("Constraints[8]", "Params.sketch10_width")
sketch10.setExpression("Constraints[9]", "Params.sketch10_height")
pocket4 = doc.addObject("PartDesign::Pocket", "Pocket003")
body.addObject(pocket4)
pocket4.Profile = sketch10
pocket4.setExpression("Length", "Params.pocket4_length")
pocket4.Reversed = True

sketch11 = doc.addObject("Sketcher::SketchObject", "Sketch010")
body.addObject(sketch11)
sketch11.AttachmentSupport = (doc.XZ_Plane, [""])
sketch11.MapMode = "FlatFace"
add_polygon(sketch11, [(632, -6544), (349, -5674), (457, -5639), (741, -6508)])
sketch11.addConstraint([
    Sketcher.Constraint("Perpendicular", 0, 1),
    Sketcher.Constraint("Perpendicular", 1, 2),
    Sketcher.Constraint("Perpendicular", 2, 3),
    Sketcher.Constraint("Distance", 0, Q("36 in")),
    Sketcher.Constraint("DistanceX", -1, 1, 1, 2, Q("18 in")),
    Sketcher.Constraint("Distance", 1, Q("4.5 in")),
    Sketcher.Constraint("DistanceY", 1, 2, -1, 1, Q("222 in")),
    Sketcher.Constraint("Angle", 0, Q("108.0596 deg")),
])
sketch11.setExpression("Constraints[7]", "Params.sketch11_length")
sketch11.setExpression("Constraints[9]", "Params.sketch11_length2")
pad7 = doc.addObject("PartDesign::Pad", "Pad006")
body.addObject(pad7)
pad7.Profile = sketch11
pad7.setExpression("Length", "Params.pad7_length")
pad7.Reversed = True

sketch12 = doc.addObject("Sketcher::SketchObject", "Sketch011")
body.addObject(sketch12)
sketch12.AttachmentSupport = (doc.XZ_Plane, [""])
sketch12.MapMode = "FlatFace"
sketch12.AttachmentOffset = App.Placement(V(0, 0, -96 * 25.4), App.Rotation())
add_polygon(sketch12, [(457, -5639), (-457, -5639), (-457, -5486), (457, -5486)])
sketch12.addConstraint([
    Sketcher.Constraint("Horizontal", 0),
    Sketcher.Constraint("Vertical", 1),
    Sketcher.Constraint("Horizontal", 2),
    Sketcher.Constraint("Vertical", 3),
    Sketcher.Constraint("DistanceX", 0, 2, 0, 1, Q("36 in")),
    Sketcher.Constraint("DistanceY", 1, 1, 1, 2, Q("6 in")),
    Sketcher.Constraint("DistanceX", 0, 2, -1, 1, Q("18 in")),
    Sketcher.Constraint("DistanceY", 0, 2, -1, 1, Q("222 in")),
])
sketch12.setExpression("Constraints[8]", "Params.sketch12_width")
sketch12.setExpression("Constraints[9]", "Params.sketch12_height")
pocket5 = doc.addObject("PartDesign::Pocket", "Pocket004")
body.addObject(pocket5)
pocket5.Profile = sketch12
pocket5.setExpression("Length", "Params.pocket5_length")
pocket5.Reversed = True

doc.recompute()
